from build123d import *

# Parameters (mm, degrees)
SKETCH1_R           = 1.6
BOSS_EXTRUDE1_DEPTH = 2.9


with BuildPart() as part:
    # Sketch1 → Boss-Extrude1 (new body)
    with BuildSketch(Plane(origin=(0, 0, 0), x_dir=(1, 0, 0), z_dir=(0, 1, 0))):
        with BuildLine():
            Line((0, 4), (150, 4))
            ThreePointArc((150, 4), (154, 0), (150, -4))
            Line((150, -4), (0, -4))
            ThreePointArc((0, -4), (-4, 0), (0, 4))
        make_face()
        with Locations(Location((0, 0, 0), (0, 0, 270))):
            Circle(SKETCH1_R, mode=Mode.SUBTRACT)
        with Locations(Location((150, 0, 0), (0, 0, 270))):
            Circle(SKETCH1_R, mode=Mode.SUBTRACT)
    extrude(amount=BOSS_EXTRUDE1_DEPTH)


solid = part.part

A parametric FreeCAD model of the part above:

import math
import FreeCAD as App
import Part
import Sketcher

V = App.Vector
Q = App.Units.Quantity

doc = App.newDocument("Part")
body = doc.addObject("PartDesign::Body", "Body")

sketch1 = body.newObject("Sketcher::SketchObject", "Sketch")
sketch1.AttachmentSupport = (doc.getObject("XZ_Plane"), [""])
sketch1.MapMode = "FlatFace"
sketch1.addGeometry([
    Part.LineSegment(V(150, -4, 0), V(0, -4, 0)),
    Part.ArcOfCircle(Part.Circle(V(0, 0, 0), V(0, 0, 1), 4), math.radians(90), math.radians(270)),
    Part.LineSegment(V(0, 4, 0), V(150, 4, 0)),
    Part.ArcOfCircle(Part.Circle(V(150, 0, 0), V(0, 0, 1), 4), math.radians(-90), math.radians(90)),
    Part.Circle(V(150, 0, 0), V(0, 0, 1), 1.6),
    Part.Circle(V(0, 0, 0), V(0, 0, 1), 1.6),
], False)
sketch1.addConstraint([
    Sketcher.Constraint("Tangent", 0, 2, 1, 2),
    Sketcher.Constraint("Tangent", 1, 1, 2, 1),
    Sketcher.Constraint("Tangent", 2, 2, 3, 2),
    Sketcher.Constraint("Tangent", 3, 1, 0, 1),
    Sketcher.Constraint("Horizontal", 0),
    Sketcher.Constraint("Horizontal", 2),
    Sketcher.Constraint("Coincident", 1, 3, -1, 1),
    Sketcher.Constraint("Coincident", 5, 3, -1, 1),
    Sketcher.Constraint("Coincident", 4, 3, 3, 3),
    Sketcher.Constraint("Equal", 4, 5),
    Sketcher.Constraint("Radius", 1, Q("4 mm")),
    Sketcher.Constraint("Diameter", 4, Q("3.2 mm")),
    Sketcher.Constraint("DistanceX", 0, 2, 0, 1, Q("150 mm")),
])
pad1 = body.newObject("PartDesign::Pad", "Pad")
pad1.Profile = sketch1
pad1.Length = 2.9
pad1.Reversed = True

doc.recompute()
